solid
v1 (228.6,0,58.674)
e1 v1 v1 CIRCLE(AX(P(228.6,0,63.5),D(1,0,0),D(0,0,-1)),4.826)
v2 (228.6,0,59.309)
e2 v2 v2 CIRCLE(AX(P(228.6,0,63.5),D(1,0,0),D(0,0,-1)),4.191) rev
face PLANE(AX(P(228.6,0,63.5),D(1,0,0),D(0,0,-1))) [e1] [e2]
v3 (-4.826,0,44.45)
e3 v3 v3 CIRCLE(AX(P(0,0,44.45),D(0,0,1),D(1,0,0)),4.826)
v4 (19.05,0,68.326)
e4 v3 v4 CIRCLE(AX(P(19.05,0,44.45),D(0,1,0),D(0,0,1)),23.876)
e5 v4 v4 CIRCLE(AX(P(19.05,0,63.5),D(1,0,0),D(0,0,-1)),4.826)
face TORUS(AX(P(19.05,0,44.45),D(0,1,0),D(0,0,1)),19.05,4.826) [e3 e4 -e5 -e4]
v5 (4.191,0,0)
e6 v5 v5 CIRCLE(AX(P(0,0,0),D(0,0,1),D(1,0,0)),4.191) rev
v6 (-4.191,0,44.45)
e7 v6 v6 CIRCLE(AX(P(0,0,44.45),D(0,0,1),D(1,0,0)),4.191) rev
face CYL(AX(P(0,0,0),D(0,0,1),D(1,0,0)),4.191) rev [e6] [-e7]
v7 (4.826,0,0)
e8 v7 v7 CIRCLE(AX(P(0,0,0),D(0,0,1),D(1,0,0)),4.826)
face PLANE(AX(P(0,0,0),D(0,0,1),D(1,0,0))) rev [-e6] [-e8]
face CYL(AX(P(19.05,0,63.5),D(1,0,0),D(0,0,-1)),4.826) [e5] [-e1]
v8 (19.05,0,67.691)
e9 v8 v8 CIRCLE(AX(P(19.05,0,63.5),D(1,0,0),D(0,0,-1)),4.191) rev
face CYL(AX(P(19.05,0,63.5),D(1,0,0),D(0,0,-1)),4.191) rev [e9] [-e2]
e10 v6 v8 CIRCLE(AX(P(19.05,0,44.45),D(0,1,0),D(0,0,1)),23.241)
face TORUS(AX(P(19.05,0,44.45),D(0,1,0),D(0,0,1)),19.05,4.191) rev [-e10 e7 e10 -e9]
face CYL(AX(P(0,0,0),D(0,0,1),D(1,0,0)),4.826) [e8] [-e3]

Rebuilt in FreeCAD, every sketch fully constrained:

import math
import FreeCAD as App
import Part
import Sketcher
Q = App.Units.Quantity

doc = App.newDocument("Part")
params = doc.addObject("Spreadsheet::Sheet", "Params")
for row, (alias, value) in enumerate([
    ("sketch1_diameter", "0.38 in"),
    ("sketch1_diameter2", "0.33 in"),
    ("sketch2_radius", "0.75 in"),
    ("sketch2_height", "1.75 in"),
], start=1):
    params.set(f"A{row}", alias)
    params.set(f"B{row}", "=" + value)
    params.setAlias(f"B{row}", alias)

body = doc.addObject("PartDesign::Body", "Body")

# Sketch on XY plane
sketch1 = body.newObject("Sketcher::SketchObject", "Sketch")
sketch1.AttachmentSupport = (doc.getObject("XY_Plane"), [""])
sketch1.MapMode = "FlatFace"
sketch1.addGeometry(Part.Circle(App.Vector(0, 0, 0), App.Vector(0, 0, 1), 4.826), False)
sketch1.addGeometry(Part.Circle(App.Vector(0, 0, 0), App.Vector(0, 0, 1), 4.191), False)
sketch1.addConstraint(Sketcher.Constraint("Coincident", 0, 3, -1, 1))
sketch1.addConstraint(Sketcher.Constraint("Coincident", 1, 3, -1, 1))
sketch1.addConstraint(Sketcher.Constraint("Diameter", 0, Q("0.38 in")))
sketch1.addConstraint(Sketcher.Constraint("Diameter", 1, Q("0.33 in")))
sketch1.setExpression("Constraints[2]", "Params.sketch1_diameter")
sketch1.setExpression("Constraints[3]", "Params.sketch1_diameter2")

# Sketch on XZ plane
sketch2 = body.newObject("Sketcher::SketchObject", "Sketch001")
sketch2.AttachmentSupport = (doc.getObject("XZ_Plane"), [""])
sketch2.MapMode = "FlatFace"
sketch2.addGeometry(Part.LineSegment(App.Vector(0, 0, 0), App.Vector(0, 44.45, 0)), False)
sketch2.addGeometry(Part.ArcOfCircle(Part.Circle(App.Vector(19.05, 44.45, 0), App.Vector(0, 0, 1), 19.05), math.radians(90), math.radians(180)), False)
sketch2.addGeometry(Part.LineSegment(App.Vector(19.05, 63.5, 0), App.Vector(228.6, 63.5, 0)), False)
sketch2.addConstraint(Sketcher.Constraint("Tangent", 0, 2, 1, 2))
sketch2.addConstraint(Sketcher.Constraint("Tangent", 1, 1, 2, 1))
sketch2.addConstraint(Sketcher.Constraint("Vertical", 0))
sketch2.addConstraint(Sketcher.Constraint("Horizontal", 2))
sketch2.addConstraint(Sketcher.Constraint("Coincident", 0, 1, -1, 1))
sketch2.addConstraint(Sketcher.Constraint("Radius", 1, Q("0.75 in")))
sketch2.addConstraint(Sketcher.Constraint("DistanceX", -1, 1, 2, 2, Q("9 in")))
sketch2.addConstraint(Sketcher.Constraint("DistanceY", 0, 1, 0, 2, Q("1.75 in")))
sketch2.setExpression("Constraints[5]", "Params.sketch2_radius")
sketch2.setExpression("Constraints[7]", "Params.sketch2_height")
doc.recompute()

additivepipe = body.newObject("PartDesign::AdditivePipe", "AdditivePipe")
additivepipe.Profile = sketch1
additivepipe.Spine = (sketch2, ["Edge1", "Edge2", "Edge3"])

doc.recompute()
